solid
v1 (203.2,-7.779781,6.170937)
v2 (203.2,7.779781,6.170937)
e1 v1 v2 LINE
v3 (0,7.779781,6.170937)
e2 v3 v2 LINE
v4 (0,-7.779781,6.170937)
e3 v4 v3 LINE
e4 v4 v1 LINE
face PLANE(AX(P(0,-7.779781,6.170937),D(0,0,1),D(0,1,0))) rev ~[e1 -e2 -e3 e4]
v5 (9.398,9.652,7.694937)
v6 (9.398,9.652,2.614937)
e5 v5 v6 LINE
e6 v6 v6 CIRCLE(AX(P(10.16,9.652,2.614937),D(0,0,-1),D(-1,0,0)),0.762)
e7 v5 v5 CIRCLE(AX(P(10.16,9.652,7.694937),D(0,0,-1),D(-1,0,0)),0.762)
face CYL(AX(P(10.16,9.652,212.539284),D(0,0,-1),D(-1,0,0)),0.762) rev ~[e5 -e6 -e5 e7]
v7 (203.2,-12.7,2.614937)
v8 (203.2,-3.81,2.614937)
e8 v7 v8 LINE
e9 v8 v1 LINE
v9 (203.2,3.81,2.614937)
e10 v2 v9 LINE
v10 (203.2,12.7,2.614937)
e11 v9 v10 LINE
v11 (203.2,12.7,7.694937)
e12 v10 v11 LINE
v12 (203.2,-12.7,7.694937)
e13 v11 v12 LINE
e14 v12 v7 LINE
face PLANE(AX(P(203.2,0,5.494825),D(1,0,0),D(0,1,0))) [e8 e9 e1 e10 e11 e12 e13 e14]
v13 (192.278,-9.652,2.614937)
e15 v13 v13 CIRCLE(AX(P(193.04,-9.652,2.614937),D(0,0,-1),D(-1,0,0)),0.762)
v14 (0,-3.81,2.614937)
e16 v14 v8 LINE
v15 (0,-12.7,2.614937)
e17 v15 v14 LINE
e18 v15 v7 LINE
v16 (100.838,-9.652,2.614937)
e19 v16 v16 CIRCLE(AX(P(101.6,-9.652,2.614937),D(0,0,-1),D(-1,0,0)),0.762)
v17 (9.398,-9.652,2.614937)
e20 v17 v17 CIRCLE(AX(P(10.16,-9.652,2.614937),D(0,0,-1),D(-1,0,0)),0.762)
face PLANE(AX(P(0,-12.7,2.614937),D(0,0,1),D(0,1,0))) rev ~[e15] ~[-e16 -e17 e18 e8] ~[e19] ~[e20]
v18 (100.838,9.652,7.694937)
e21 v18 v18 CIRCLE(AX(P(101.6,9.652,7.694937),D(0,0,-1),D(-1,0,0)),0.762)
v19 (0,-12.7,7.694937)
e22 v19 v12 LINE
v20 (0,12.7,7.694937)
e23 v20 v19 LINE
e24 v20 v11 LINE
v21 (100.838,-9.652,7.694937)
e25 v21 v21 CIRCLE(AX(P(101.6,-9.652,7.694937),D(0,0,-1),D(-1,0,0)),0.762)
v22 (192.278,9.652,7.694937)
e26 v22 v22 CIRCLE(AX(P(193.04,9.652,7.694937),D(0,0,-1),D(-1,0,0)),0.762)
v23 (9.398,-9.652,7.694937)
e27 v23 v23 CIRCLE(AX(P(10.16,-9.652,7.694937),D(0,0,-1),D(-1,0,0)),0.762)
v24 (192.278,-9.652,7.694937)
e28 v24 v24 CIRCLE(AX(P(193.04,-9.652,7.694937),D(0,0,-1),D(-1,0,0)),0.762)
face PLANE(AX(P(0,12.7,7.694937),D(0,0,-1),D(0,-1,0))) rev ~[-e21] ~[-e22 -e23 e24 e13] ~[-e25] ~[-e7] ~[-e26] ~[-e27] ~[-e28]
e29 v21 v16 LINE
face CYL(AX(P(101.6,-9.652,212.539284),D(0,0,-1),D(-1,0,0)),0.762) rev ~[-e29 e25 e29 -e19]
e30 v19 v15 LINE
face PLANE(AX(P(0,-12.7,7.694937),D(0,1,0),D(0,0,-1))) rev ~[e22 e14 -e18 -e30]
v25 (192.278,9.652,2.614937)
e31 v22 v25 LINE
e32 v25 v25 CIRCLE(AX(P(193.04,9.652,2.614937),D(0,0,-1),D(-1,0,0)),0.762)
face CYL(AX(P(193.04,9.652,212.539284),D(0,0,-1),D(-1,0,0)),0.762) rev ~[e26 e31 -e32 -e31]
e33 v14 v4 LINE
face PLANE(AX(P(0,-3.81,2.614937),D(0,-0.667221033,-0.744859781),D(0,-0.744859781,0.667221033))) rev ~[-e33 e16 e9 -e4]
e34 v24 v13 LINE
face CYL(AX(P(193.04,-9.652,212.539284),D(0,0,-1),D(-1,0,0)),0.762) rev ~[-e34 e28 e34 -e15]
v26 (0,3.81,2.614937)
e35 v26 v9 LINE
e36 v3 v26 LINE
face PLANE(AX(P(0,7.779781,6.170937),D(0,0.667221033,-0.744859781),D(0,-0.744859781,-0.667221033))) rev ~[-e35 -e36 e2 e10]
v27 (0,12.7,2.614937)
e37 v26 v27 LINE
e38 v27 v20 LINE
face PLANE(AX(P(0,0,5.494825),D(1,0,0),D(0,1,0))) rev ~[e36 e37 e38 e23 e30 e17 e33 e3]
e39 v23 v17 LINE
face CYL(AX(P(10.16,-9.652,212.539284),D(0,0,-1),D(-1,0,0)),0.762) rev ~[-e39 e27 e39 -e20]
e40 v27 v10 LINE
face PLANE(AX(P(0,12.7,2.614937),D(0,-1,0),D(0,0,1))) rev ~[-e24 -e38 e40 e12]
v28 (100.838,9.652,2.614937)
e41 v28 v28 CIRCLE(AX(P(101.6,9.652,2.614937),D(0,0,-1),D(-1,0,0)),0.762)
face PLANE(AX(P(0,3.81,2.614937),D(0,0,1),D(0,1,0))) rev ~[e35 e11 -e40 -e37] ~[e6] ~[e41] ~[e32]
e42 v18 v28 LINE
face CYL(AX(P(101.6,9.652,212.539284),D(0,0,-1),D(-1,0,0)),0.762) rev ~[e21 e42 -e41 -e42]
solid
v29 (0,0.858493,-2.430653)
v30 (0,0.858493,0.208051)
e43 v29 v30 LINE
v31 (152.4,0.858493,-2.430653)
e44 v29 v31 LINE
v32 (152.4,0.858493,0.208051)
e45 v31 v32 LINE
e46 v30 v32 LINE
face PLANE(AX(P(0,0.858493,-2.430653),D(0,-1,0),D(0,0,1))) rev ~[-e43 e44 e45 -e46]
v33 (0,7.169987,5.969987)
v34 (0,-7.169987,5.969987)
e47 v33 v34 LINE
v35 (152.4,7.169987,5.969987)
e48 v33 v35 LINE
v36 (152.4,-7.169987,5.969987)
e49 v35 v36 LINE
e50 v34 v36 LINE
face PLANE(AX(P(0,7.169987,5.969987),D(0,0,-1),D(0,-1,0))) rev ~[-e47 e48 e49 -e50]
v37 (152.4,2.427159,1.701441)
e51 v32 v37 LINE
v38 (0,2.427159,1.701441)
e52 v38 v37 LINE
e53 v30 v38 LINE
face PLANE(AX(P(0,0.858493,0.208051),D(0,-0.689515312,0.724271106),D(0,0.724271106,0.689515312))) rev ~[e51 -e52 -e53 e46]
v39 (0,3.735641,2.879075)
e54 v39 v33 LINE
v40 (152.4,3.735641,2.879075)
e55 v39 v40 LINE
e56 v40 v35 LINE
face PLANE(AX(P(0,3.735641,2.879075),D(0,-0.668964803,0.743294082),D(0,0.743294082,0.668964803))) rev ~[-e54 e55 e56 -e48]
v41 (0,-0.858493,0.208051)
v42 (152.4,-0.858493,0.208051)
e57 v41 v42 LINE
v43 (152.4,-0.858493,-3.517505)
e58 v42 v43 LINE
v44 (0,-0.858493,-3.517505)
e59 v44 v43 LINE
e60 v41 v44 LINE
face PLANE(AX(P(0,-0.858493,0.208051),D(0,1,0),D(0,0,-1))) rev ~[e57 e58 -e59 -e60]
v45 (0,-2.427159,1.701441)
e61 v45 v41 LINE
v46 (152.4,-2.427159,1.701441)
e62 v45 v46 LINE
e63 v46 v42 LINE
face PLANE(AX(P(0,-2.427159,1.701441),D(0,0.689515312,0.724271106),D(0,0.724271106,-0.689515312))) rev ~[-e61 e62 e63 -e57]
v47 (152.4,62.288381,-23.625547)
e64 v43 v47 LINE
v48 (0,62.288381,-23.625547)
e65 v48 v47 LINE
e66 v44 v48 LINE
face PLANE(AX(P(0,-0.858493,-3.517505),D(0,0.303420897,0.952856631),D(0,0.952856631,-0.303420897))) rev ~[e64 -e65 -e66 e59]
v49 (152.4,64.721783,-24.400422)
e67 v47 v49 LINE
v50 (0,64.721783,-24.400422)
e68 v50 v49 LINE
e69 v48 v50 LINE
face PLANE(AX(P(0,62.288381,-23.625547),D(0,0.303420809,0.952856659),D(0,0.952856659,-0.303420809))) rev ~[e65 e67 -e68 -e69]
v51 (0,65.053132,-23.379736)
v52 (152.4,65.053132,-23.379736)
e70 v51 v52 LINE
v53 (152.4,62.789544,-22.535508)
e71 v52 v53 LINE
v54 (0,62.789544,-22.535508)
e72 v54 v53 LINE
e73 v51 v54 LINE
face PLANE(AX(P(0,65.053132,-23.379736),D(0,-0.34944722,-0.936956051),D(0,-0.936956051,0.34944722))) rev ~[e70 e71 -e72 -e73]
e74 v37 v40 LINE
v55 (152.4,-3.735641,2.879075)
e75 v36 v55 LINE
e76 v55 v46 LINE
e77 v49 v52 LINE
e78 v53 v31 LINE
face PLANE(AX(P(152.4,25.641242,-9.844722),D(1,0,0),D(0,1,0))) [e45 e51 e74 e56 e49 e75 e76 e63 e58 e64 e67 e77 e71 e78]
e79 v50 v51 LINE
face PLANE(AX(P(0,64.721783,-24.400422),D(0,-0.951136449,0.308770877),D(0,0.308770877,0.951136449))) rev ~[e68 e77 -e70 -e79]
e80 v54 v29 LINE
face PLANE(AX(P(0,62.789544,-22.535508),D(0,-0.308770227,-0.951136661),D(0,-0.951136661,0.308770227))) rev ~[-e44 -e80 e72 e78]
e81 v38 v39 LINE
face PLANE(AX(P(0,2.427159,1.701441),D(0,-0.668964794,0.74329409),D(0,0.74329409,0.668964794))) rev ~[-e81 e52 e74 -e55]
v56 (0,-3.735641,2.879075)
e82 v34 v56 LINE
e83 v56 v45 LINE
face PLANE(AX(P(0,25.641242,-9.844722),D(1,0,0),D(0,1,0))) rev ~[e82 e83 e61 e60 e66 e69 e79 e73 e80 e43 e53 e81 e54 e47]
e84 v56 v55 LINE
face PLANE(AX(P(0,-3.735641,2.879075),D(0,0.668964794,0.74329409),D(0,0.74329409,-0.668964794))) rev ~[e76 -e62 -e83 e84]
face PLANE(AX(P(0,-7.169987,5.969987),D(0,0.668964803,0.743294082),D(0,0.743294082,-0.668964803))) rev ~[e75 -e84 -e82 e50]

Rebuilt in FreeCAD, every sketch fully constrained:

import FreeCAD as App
import Part
import Sketcher
from FreeCAD import Vector
Q = App.Units.Quantity

doc = App.newDocument("Part")
body = doc.addObject("PartDesign::Body", "Body")

# Sketch on YZ plane
sketch1 = body.newObject("Sketcher::SketchObject", "Sketch")
sketch1.AttachmentSupport = (doc.getObject("YZ_Plane"), [""])
sketch1.MapMode = "FlatFace"
sketch1.addGeometry([
    Part.LineSegment(Vector(12.7, 7.694937, 0), Vector(-12.7, 7.694937, 0)),  # 0
    Part.LineSegment(Vector(-12.7, 7.694937, 0), Vector(-12.7, 2.614937, 0)),  # 1
    Part.LineSegment(Vector(-12.7, 2.614937, 0), Vector(-3.81, 2.614937, 0)),  # 2
    Part.LineSegment(Vector(-3.81, 2.614937, 0), Vector(-7.779781, 6.170937, 0)),  # 3
    Part.LineSegment(Vector(-7.779781, 6.170937, 0), Vector(7.779781, 6.170937, 0)),  # 4
    Part.LineSegment(Vector(7.779781, 6.170937, 0), Vector(3.81, 2.614937, 0)),  # 5
    Part.LineSegment(Vector(3.81, 2.614937, 0), Vector(12.7, 2.614937, 0)),  # 6
    Part.LineSegment(Vector(12.7, 2.614937, 0), Vector(12.7, 7.694937, 0)),  # 7
], False)
sketch1.addConstraint([
    Sketcher.Constraint("Coincident", 0, 2, 1, 1),
    Sketcher.Constraint("Coincident", 1, 2, 2, 1),
    Sketcher.Constraint("Coincident", 2, 2, 3, 1),
    Sketcher.Constraint("Coincident", 3, 2, 4, 1),
    Sketcher.Constraint("Coincident", 4, 2, 5, 1),
    Sketcher.Constraint("Coincident", 5, 2, 6, 1),
    Sketcher.Constraint("Coincident", 6, 2, 7, 1),
    Sketcher.Constraint("Coincident", 7, 2, 0, 1),
    Sketcher.Constraint("Horizontal", 0),
    Sketcher.Constraint("Vertical", 1),
    Sketcher.Constraint("Horizontal", 2),
    Sketcher.Constraint("Horizontal", 4),
    Sketcher.Constraint("Horizontal", 6),
    Sketcher.Constraint("Vertical", 7),
    Sketcher.Constraint("Symmetric", 2, 2, 5, 2, -2),
    Sketcher.Constraint("Equal", 2, 6),
    Sketcher.Constraint("Equal", 3, 5),
    Sketcher.Constraint("DistanceX", 0, 2, 0, 1, Q("1 in")),
    Sketcher.Constraint("DistanceY", 1, 2, 1, 1, Q("0.2 in")),
    Sketcher.Constraint("DistanceX", 2, 1, 2, 2, Q("0.35 in")),
    Sketcher.Constraint("DistanceY", 3, 2, 0, 2, Q("0.06 in")),
    Sketcher.Constraint("Distance", 3, 5.329568),
    Sketcher.Constraint("DistanceY", -1, 1, 0, 2, 7.694937),
])
pad1 = body.newObject("PartDesign::Pad", "Pad")
pad1.Profile = sketch1
pad1.Length = Q("8 in")

# Sketch on XY plane
sketch2 = body.newObject("Sketcher::SketchObject", "Sketch001")
sketch2.AttachmentSupport = (doc.getObject("XY_Plane"), [""])
sketch2.MapMode = "FlatFace"
sketch2.AttachmentOffset = App.Placement(Vector(0, 0, 7.694937), App.Rotation())
sketch2.addGeometry([
    Part.Circle(Vector(101.6, 9.652, 0), Vector(0, 0, 1), 0.762),  # 0
    Part.Circle(Vector(101.6, -9.652, 0), Vector(0, 0, 1), 0.762),  # 1
    Part.Circle(Vector(10.16, 9.652, 0), Vector(0, 0, 1), 0.762),  # 2
    Part.Circle(Vector(10.16, -9.652, 0), Vector(0, 0, 1), 0.762),  # 3
    Part.Circle(Vector(193.04, 9.652, 0), Vector(0, 0, 1), 0.762),  # 4
    Part.Circle(Vector(193.04, -9.652, 0), Vector(0, 0, 1), 0.762),  # 5
], False)
sketch2.addConstraint([
    Sketcher.Constraint("Equal", 0, 1),
    Sketcher.Constraint("Equal", 1, 2),
    Sketcher.Constraint("Equal", 2, 3),
    Sketcher.Constraint("Equal", 3, 4),
    Sketcher.Constraint("Equal", 4, 5),
    Sketcher.Constraint("Symmetric", 0, 3, 1, 3, -1),
    Sketcher.Constraint("Symmetric", 2, 3, 3, 3, -1),
    Sketcher.Constraint("Symmetric", 4, 3, 5, 3, -1),
    Sketcher.Constraint("Horizontal", 0, 3, 2, 3),
    Sketcher.Constraint("Horizontal", 2, 3, 4, 3),
    Sketcher.Constraint("Diameter", 0, Q("0.06 in")),
    Sketcher.Constraint("DistanceX", -1, 1, 0, 3, Q("4 in")),
    Sketcher.Constraint("DistanceX", -1, 1, 2, 3, Q("0.4 in")),
    Sketcher.Constraint("DistanceX", -1, 1, 4, 3, Q("7.6 in")),
    Sketcher.Constraint("DistanceY", -1, 1, 0, 3, Q("0.38 in")),
])
doc.recompute()
hole = body.newObject("PartDesign::Hole", "Hole")
hole.Profile = sketch2
hole.ThreadType = "None"
hole.Diameter = Q("0.06 in")
hole.DepthType = "ThroughAll"
body2 = doc.addObject("PartDesign::Body", "Body001")

# Sketch on YZ plane
sketch3 = body2.newObject("Sketcher::SketchObject", "Sketch002")
sketch3.AttachmentSupport = (doc.getObject("YZ_Plane001"), [""])
sketch3.MapMode = "FlatFace"
sketch3.addGeometry([
    Part.LineSegment(Vector(7.169987, 5.969987, 0), Vector(-7.169987, 5.969987, 0)),  # 0
    Part.LineSegment(Vector(-7.169987, 5.969987, 0), Vector(-3.735641, 2.879075, 0)),  # 1
    Part.LineSegment(Vector(-3.735641, 2.879075, 0), Vector(-2.427159, 1.701441, 0)),  # 2
    Part.LineSegment(Vector(-2.427159, 1.701441, 0), Vector(-0.858493, 0.208051, 0)),  # 3
    Part.LineSegment(Vector(-0.858493, 0.208051, 0), Vector(-0.858493, -3.517505, 0)),  # 4
    Part.LineSegment(Vector(-0.858493, -3.517505, 0), Vector(62.288381, -23.625547, 0)),  # 5
    Part.LineSegment(Vector(62.288381, -23.625547, 0), Vector(64.721783, -24.400422, 0)),  # 6
    Part.LineSegment(Vector(64.721783, -24.400422, 0), Vector(65.053132, -23.379736, 0)),  # 7
    Part.LineSegment(Vector(65.053132, -23.379736, 0), Vector(62.789544, -22.535508, 0)),  # 8
    Part.LineSegment(Vector(62.789544, -22.535508, 0), Vector(0.858493, -2.430653, 0)),  # 9
    Part.LineSegment(Vector(0.858493, -2.430653, 0), Vector(0.858493, 0.208051, 0)),  # 10
    Part.LineSegment(Vector(0.858493, 0.208051, 0), Vector(2.427159, 1.701441, 0)),  # 11
    Part.LineSegment(Vector(2.427159, 1.701441, 0), Vector(3.735641, 2.879075, 0)),  # 12
    Part.LineSegment(Vector(3.735641, 2.879075, 0), Vector(7.169987, 5.969987, 0)),  # 13
], False)
sketch3.addConstraint([
    Sketcher.Constraint("Coincident", 0, 2, 1, 1),
    Sketcher.Constraint("Coincident", 1, 2, 2, 1),
    Sketcher.Constraint("Coincident", 2, 2, 3, 1),
    Sketcher.Constraint("Coincident", 3, 2, 4, 1),
    Sketcher.Constraint("Coincident", 4, 2, 5, 1),
    Sketcher.Constraint("Coincident", 5, 2, 6, 1),
    Sketcher.Constraint("Coincident", 6, 2, 7, 1),
    Sketcher.Constraint("Coincident", 7, 2, 8, 1),
    Sketcher.Constraint("Coincident", 8, 2, 9, 1),
    Sketcher.Constraint("Coincident", 9, 2, 10, 1),
    Sketcher.Constraint("Coincident", 10, 2, 11, 1),
    Sketcher.Constraint("Coincident", 11, 2, 12, 1),
    Sketcher.Constraint("Coincident", 12, 2, 13, 1),
    Sketcher.Constraint("Coincident", 13, 2, 0, 1),
    Sketcher.Constraint("Horizontal", 0),
    Sketcher.Constraint("Vertical", 4),
    Sketcher.Constraint("Vertical", 10),
    Sketcher.Constraint("DistanceY", 5, 2, 3, 2, 23.833598),
    Sketcher.Constraint("DistanceX", 2, 2, 12, 2, 6.1628),
    Sketcher.Constraint("Distance", 1, 4.62044),
    Sketcher.Constraint("Distance", 13, 4.62044),
    Sketcher.Constraint("DistanceX", 0, 2, 0, 1, 14.339974),
    Sketcher.Constraint("DistanceY", 4, 2, 4, 1, 3.725556),
    Sketcher.Constraint("DistanceY", 10, 1, 10, 2, 2.638704),
    Sketcher.Constraint("DistanceX", 1, 2, -1, 1, 3.735641),
    Sketcher.Constraint("DistanceX", 2, 2, -1, 1, 2.427159),
    Sketcher.Constraint("DistanceY", -1, 1, 2, 2, 1.701441),
    Sketcher.Constraint("DistanceY", -1, 1, 3, 2, 0.208051),
    Sketcher.Constraint("DistanceX", -1, 1, 5, 2, 62.288381),
    Sketcher.Constraint("DistanceY", 6, 2, -1, 1, 24.400422),
    Sketcher.Constraint("DistanceY", 8, 2, -1, 1, 22.535508),
    Sketcher.Constraint("DistanceY", -1, 1, 10, 2, 0.208051),
    Sketcher.Constraint("DistanceX", -1, 1, 11, 2, 2.427159),
    Sketcher.Constraint("DistanceY", -1, 1, 11, 2, 1.701441),
    Sketcher.Constraint("DistanceY", 1, 2, 0, 2, 3.090912),
    Sketcher.Constraint("DistanceX", 1, 2, 3, 2, 2.877148),
    Sketcher.Constraint("DistanceY", 4, 2, 1, 2, 6.39658),
    Sketcher.Constraint("DistanceX", 6, 2, 7, 2, 0.331349),
    Sketcher.Constraint("DistanceX", 5, 2, 7, 2, 2.764751),
    Sketcher.Constraint("DistanceY", 5, 2, 7, 2, 0.245811),
    Sketcher.Constraint("DistanceX", 8, 2, 7, 2, 2.263588),
    Sketcher.Constraint("DistanceX", 2, 2, 9, 2, 3.285652),
])
pad2 = body2.newObject("PartDesign::Pad", "Pad001")
pad2.Profile = sketch3
pad2.Length = Q("6 in")

doc.recompute()
